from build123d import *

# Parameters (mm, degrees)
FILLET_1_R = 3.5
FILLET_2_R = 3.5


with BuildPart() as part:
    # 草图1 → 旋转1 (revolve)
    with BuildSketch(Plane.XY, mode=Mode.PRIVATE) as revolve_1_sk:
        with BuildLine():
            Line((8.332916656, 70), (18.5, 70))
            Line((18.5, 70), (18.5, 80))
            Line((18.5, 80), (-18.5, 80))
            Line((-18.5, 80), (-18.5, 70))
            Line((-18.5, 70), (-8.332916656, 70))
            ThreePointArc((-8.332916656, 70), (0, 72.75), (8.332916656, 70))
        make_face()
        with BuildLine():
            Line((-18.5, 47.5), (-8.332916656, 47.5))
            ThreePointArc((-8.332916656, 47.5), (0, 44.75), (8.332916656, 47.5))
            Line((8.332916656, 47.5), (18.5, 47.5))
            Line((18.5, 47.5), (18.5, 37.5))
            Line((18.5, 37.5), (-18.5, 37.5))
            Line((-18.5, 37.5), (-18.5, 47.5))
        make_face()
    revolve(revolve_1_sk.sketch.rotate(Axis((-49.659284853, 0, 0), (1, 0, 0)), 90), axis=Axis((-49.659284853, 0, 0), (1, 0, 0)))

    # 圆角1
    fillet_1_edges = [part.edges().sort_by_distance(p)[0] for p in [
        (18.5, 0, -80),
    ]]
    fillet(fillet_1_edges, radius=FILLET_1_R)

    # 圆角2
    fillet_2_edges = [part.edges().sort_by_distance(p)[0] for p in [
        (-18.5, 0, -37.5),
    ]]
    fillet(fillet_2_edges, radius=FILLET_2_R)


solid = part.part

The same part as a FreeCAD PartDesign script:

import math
import FreeCAD as App
import Part
import Sketcher
Q = App.Units.Quantity


def edges_at(feature, points):
    """Names of the edges that pass closest to the given points."""
    edges = feature.Shape.Edges
    near = lambda p: min(range(len(edges)), key=lambda i: edges[i].distToShape(Part.Vertex(*p))[0])
    return sorted({f"Edge{near(p) + 1}" for p in points})

doc = App.newDocument("Part")
body = doc.addObject("PartDesign::Body", "Body")
body.AllowCompound = True

# Sketch on XY plane
sketch1 = body.newObject("Sketcher::SketchObject", "Sketch")
sketch1.AttachmentSupport = (doc.getObject("XY_Plane"), [""])
sketch1.MapMode = "FlatFace"
sketch1.addGeometry([
    Part.LineSegment(App.Vector(8.332917, 70, 0), App.Vector(18.5, 70, 0)),  # 0
    Part.LineSegment(App.Vector(18.5, 70, 0), App.Vector(18.5, 80, 0)),  # 1
    Part.LineSegment(App.Vector(18.5, 80, 0), App.Vector(-18.5, 80, 0)),  # 2
    Part.LineSegment(App.Vector(-18.5, 80, 0), App.Vector(-18.5, 70, 0)),  # 3
    Part.LineSegment(App.Vector(-18.5, 70, 0), App.Vector(-8.332917, 70, 0)),  # 4
    Part.ArcOfCircle(Part.Circle(App.Vector(0, 58.75, 0), App.Vector(0, 0, 1), 14), math.radians(53.472515), math.radians(126.527485)),  # 5
    Part.LineSegment(App.Vector(-8.332917, 47.5, 0), App.Vector(-18.5, 47.5, 0)),  # 6
    Part.LineSegment(App.Vector(-18.5, 47.5, 0), App.Vector(-18.5, 37.5, 0)),  # 7
    Part.LineSegment(App.Vector(-18.5, 37.5, 0), App.Vector(18.5, 37.5, 0)),  # 8
    Part.LineSegment(App.Vector(18.5, 37.5, 0), App.Vector(18.5, 47.5, 0)),  # 9
    Part.LineSegment(App.Vector(18.5, 47.5, 0), App.Vector(8.332917, 47.5, 0)),  # 10
    Part.ArcOfCircle(Part.Circle(App.Vector(0, 58.75, 0), App.Vector(0, 0, 1), 14), math.radians(-126.527485), math.radians(-53.472515)),  # 11
], False)
sketch1.addConstraint([
    Sketcher.Constraint("Coincident", 0, 2, 1, 1),
    Sketcher.Constraint("Coincident", 1, 2, 2, 1),
    Sketcher.Constraint("Coincident", 2, 2, 3, 1),
    Sketcher.Constraint("Coincident", 3, 2, 4, 1),
    Sketcher.Constraint("Coincident", 4, 2, 5, 2),
    Sketcher.Constraint("Coincident", 5, 1, 0, 1),
    Sketcher.Constraint("Coincident", 6, 2, 7, 1),
    Sketcher.Constraint("Coincident", 7, 2, 8, 1),
    Sketcher.Constraint("Coincident", 8, 2, 9, 1),
    Sketcher.Constraint("Coincident", 9, 2, 10, 1),
    Sketcher.Constraint("Coincident", 10, 2, 11, 2),
    Sketcher.Constraint("Coincident", 11, 1, 6, 1),
    Sketcher.Constraint("Horizontal", 0),
    Sketcher.Constraint("Vertical", 1),
    Sketcher.Constraint("Horizontal", 2),
    Sketcher.Constraint("Vertical", 3),
    Sketcher.Constraint("Horizontal", 4),
    Sketcher.Constraint("Horizontal", 6),
    Sketcher.Constraint("Vertical", 7),
    Sketcher.Constraint("Horizontal", 8),
    Sketcher.Constraint("Vertical", 9),
    Sketcher.Constraint("Horizontal", 10),
    Sketcher.Constraint("Coincident", 11, 3, 5, 3),
    Sketcher.Constraint("Equal", 5, 11),
    Sketcher.Constraint("Symmetric", 0, 2, 3, 2, -2),
    Sketcher.Constraint("Symmetric", 6, 2, 9, 2, -2),
    Sketcher.Constraint("PointOnObject", 5, 3, -2),
    Sketcher.Constraint("Vertical", 3, 2, 6, 2),
    Sketcher.Constraint("Vertical", 5, 1, 10, 2),
    Sketcher.Constraint("Equal", 3, 7),
    Sketcher.Constraint("Radius", 5, Q("14 mm")),
    Sketcher.Constraint("DistanceX", 2, 2, 2, 1, Q("37 mm")),
    Sketcher.Constraint("DistanceY", 1, 1, 1, 2, Q("10 mm")),
    Sketcher.Constraint("DistanceY", -1, 1, 0, 2, Q("70 mm")),
    Sketcher.Constraint("DistanceY", -1, 1, 6, 2, Q("47.5 mm")),
])
revolution = body.newObject("PartDesign::Revolution", "Revolution")
revolution.Profile = sketch1
revolution.ReferenceAxis = (sketch1, ["H_Axis"])
revolution.Angle = 360
doc.recompute()

fillet = body.newObject("PartDesign::Fillet", "Fillet")
fillet.Base = (revolution, edges_at(revolution, [(18.5, 0, -80)]))
fillet.Radius = 3.5
doc.recompute()

fillet2 = body.newObject("PartDesign::Fillet", "Fillet001")
fillet2.Base = (fillet, edges_at(fillet, [(-18.5, 0, -37.5)]))
fillet2.Radius = 3.5

doc.recompute()
